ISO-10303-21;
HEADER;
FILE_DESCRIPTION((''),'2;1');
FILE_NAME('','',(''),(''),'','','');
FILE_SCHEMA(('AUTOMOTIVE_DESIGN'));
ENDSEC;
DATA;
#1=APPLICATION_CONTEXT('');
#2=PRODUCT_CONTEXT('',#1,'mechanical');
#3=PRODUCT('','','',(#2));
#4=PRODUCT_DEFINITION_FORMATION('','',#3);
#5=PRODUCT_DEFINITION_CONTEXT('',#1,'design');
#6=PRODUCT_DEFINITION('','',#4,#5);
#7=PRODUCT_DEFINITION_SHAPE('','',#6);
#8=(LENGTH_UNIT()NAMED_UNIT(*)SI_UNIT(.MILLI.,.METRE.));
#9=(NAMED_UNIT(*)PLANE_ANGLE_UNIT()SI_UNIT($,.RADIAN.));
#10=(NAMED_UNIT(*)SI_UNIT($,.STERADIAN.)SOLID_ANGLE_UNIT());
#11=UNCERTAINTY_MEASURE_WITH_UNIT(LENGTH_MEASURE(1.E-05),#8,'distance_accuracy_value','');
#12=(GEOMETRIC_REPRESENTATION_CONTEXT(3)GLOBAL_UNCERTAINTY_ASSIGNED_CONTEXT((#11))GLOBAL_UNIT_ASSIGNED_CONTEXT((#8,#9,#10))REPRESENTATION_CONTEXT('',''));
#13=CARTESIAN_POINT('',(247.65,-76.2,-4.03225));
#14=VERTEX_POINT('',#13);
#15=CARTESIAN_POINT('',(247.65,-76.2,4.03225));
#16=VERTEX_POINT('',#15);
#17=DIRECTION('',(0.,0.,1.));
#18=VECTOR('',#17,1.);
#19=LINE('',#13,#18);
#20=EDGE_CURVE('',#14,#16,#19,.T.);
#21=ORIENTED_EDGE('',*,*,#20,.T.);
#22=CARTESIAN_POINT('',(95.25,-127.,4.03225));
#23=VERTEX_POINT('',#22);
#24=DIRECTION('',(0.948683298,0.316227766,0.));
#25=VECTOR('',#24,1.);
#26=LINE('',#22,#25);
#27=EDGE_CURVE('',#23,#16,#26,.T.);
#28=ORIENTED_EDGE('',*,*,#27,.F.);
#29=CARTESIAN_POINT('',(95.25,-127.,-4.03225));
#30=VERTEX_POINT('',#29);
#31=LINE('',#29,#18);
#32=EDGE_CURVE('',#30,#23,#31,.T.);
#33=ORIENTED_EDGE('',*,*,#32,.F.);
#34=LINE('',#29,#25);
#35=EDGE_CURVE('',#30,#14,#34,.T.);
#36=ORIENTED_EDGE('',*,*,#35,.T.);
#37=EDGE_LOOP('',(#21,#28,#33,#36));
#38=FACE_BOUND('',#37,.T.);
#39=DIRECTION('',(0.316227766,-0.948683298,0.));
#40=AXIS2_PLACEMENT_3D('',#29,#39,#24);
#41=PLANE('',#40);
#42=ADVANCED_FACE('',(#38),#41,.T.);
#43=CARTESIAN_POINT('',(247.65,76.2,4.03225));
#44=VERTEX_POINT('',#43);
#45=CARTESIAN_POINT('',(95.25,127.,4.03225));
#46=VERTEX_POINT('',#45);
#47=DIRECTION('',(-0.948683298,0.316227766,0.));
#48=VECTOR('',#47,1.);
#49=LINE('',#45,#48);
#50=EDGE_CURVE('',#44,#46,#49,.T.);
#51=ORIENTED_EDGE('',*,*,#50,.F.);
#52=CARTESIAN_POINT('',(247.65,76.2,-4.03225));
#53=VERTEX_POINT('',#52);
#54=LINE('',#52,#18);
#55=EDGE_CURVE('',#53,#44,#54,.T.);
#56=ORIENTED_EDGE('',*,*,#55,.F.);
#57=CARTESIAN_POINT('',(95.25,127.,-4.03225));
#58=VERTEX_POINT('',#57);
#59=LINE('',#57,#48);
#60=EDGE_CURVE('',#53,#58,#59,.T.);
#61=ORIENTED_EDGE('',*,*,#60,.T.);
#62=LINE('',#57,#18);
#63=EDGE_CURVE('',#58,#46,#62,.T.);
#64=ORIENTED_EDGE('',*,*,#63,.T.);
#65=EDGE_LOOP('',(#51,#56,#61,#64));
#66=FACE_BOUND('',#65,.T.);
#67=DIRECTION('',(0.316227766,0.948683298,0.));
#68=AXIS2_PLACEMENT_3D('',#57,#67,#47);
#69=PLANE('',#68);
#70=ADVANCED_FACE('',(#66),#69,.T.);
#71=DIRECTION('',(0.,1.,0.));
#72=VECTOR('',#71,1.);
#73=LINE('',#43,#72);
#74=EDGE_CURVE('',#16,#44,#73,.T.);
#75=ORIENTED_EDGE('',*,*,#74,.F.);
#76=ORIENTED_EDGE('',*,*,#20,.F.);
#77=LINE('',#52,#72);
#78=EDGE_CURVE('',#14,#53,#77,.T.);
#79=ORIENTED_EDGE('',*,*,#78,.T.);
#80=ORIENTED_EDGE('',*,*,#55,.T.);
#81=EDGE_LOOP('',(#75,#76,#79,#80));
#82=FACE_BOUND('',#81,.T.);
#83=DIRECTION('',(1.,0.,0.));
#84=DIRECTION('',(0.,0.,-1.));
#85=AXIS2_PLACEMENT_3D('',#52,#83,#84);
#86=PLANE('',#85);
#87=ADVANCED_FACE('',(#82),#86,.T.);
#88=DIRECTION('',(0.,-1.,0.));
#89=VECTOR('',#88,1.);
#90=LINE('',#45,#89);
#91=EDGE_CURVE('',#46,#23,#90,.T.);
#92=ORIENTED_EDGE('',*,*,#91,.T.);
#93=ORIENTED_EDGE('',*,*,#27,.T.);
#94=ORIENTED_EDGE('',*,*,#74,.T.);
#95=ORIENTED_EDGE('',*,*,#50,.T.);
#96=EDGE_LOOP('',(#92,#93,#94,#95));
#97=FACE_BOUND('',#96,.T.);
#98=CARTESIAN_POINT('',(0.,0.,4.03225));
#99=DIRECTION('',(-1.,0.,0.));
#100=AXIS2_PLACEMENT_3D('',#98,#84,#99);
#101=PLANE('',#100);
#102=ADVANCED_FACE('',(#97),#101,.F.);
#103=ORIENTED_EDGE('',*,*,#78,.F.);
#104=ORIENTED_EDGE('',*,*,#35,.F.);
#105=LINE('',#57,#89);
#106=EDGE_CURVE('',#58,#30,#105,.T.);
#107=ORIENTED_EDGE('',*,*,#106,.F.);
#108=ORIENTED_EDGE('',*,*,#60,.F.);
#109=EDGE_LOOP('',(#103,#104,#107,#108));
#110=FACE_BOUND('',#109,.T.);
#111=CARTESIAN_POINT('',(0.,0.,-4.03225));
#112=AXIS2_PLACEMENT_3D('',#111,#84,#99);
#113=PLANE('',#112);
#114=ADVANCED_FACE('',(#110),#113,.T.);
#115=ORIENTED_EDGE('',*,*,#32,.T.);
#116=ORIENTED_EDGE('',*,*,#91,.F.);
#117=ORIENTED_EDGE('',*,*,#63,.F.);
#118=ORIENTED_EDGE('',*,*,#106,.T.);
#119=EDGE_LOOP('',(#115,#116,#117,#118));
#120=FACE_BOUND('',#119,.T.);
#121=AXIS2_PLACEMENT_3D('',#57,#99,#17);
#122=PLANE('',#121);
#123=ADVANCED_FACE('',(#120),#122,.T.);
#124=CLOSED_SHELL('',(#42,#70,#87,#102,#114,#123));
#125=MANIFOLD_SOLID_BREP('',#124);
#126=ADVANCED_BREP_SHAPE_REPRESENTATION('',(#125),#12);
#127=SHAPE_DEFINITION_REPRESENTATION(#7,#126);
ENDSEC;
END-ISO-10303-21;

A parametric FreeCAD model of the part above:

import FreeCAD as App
import Part
import Sketcher
from FreeCAD import Vector
Q = App.Units.Quantity


def add_polygon(sketch, points):
    """Adds a closed chain of lines whose ends are joined by coincident constraints."""
    first, n = sketch.GeometryCount, len(points)
    for a, b in zip(points, points[1:] + points[:1]):
        sketch.addGeometry(Part.LineSegment(App.Vector(*a, 0), App.Vector(*b, 0)), False)
    for i in range(n):
        sketch.addConstraint(Sketcher.Constraint("Coincident", first + i, 2, first + (i + 1) % n, 1))

doc = App.newDocument("Part")
params = doc.addObject("Spreadsheet::Sheet", "Params")
for row, (alias, value) in enumerate([
    ("sketch1_height", "10 in"),
    ("sketch1_height2", "6 in"),
    ("pad1_length", "4.03225 mm"),
    ("pad1_length2", "4.03225 mm"),
], start=1):
    params.set(f"A{row}", alias)
    params.set(f"B{row}", "=" + value)
    params.setAlias(f"B{row}", alias)

body = doc.addObject("PartDesign::Body", "Body")

# Sketch on XY plane
sketch1 = body.newObject("Sketcher::SketchObject", "Sketch")
sketch1.AttachmentSupport = (doc.getObject("XY_Plane"), [""])
sketch1.MapMode = "FlatFace"
add_polygon(sketch1, [(95, 127), (95, -127), (248, -76), (248, 76)])  # lines 0-3
sketch1.addConstraint([
    Sketcher.Constraint("Vertical", 0),
    Sketcher.Constraint("Vertical", 2),
    Sketcher.Constraint("Equal", 1, 3),
    Sketcher.Constraint("DistanceY", 0, 2, 0, 1, Q("10 in")),
    Sketcher.Constraint("DistanceY", 2, 1, 2, 2, Q("6 in")),
    Sketcher.Constraint("DistanceY", 0, 2, -1, 1, Q("5 in")),
    Sketcher.Constraint("DistanceX", 0, 2, 1, 2, Q("6 in")),
    Sketcher.Constraint("DistanceX", -1, 1, 0, 2, Q("3.75 in")),
])
sketch1.setExpression("Constraints[7]", "Params.sketch1_height")
sketch1.setExpression("Constraints[8]", "Params.sketch1_height2")
pad1 = body.newObject("PartDesign::Pad", "Pad")
pad1.Profile = sketch1
pad1.Type = "TwoLengths"
pad1.setExpression("Length", "Params.pad1_length")
pad1.setExpression("Length2", "Params.pad1_length2")

doc.recompute()
